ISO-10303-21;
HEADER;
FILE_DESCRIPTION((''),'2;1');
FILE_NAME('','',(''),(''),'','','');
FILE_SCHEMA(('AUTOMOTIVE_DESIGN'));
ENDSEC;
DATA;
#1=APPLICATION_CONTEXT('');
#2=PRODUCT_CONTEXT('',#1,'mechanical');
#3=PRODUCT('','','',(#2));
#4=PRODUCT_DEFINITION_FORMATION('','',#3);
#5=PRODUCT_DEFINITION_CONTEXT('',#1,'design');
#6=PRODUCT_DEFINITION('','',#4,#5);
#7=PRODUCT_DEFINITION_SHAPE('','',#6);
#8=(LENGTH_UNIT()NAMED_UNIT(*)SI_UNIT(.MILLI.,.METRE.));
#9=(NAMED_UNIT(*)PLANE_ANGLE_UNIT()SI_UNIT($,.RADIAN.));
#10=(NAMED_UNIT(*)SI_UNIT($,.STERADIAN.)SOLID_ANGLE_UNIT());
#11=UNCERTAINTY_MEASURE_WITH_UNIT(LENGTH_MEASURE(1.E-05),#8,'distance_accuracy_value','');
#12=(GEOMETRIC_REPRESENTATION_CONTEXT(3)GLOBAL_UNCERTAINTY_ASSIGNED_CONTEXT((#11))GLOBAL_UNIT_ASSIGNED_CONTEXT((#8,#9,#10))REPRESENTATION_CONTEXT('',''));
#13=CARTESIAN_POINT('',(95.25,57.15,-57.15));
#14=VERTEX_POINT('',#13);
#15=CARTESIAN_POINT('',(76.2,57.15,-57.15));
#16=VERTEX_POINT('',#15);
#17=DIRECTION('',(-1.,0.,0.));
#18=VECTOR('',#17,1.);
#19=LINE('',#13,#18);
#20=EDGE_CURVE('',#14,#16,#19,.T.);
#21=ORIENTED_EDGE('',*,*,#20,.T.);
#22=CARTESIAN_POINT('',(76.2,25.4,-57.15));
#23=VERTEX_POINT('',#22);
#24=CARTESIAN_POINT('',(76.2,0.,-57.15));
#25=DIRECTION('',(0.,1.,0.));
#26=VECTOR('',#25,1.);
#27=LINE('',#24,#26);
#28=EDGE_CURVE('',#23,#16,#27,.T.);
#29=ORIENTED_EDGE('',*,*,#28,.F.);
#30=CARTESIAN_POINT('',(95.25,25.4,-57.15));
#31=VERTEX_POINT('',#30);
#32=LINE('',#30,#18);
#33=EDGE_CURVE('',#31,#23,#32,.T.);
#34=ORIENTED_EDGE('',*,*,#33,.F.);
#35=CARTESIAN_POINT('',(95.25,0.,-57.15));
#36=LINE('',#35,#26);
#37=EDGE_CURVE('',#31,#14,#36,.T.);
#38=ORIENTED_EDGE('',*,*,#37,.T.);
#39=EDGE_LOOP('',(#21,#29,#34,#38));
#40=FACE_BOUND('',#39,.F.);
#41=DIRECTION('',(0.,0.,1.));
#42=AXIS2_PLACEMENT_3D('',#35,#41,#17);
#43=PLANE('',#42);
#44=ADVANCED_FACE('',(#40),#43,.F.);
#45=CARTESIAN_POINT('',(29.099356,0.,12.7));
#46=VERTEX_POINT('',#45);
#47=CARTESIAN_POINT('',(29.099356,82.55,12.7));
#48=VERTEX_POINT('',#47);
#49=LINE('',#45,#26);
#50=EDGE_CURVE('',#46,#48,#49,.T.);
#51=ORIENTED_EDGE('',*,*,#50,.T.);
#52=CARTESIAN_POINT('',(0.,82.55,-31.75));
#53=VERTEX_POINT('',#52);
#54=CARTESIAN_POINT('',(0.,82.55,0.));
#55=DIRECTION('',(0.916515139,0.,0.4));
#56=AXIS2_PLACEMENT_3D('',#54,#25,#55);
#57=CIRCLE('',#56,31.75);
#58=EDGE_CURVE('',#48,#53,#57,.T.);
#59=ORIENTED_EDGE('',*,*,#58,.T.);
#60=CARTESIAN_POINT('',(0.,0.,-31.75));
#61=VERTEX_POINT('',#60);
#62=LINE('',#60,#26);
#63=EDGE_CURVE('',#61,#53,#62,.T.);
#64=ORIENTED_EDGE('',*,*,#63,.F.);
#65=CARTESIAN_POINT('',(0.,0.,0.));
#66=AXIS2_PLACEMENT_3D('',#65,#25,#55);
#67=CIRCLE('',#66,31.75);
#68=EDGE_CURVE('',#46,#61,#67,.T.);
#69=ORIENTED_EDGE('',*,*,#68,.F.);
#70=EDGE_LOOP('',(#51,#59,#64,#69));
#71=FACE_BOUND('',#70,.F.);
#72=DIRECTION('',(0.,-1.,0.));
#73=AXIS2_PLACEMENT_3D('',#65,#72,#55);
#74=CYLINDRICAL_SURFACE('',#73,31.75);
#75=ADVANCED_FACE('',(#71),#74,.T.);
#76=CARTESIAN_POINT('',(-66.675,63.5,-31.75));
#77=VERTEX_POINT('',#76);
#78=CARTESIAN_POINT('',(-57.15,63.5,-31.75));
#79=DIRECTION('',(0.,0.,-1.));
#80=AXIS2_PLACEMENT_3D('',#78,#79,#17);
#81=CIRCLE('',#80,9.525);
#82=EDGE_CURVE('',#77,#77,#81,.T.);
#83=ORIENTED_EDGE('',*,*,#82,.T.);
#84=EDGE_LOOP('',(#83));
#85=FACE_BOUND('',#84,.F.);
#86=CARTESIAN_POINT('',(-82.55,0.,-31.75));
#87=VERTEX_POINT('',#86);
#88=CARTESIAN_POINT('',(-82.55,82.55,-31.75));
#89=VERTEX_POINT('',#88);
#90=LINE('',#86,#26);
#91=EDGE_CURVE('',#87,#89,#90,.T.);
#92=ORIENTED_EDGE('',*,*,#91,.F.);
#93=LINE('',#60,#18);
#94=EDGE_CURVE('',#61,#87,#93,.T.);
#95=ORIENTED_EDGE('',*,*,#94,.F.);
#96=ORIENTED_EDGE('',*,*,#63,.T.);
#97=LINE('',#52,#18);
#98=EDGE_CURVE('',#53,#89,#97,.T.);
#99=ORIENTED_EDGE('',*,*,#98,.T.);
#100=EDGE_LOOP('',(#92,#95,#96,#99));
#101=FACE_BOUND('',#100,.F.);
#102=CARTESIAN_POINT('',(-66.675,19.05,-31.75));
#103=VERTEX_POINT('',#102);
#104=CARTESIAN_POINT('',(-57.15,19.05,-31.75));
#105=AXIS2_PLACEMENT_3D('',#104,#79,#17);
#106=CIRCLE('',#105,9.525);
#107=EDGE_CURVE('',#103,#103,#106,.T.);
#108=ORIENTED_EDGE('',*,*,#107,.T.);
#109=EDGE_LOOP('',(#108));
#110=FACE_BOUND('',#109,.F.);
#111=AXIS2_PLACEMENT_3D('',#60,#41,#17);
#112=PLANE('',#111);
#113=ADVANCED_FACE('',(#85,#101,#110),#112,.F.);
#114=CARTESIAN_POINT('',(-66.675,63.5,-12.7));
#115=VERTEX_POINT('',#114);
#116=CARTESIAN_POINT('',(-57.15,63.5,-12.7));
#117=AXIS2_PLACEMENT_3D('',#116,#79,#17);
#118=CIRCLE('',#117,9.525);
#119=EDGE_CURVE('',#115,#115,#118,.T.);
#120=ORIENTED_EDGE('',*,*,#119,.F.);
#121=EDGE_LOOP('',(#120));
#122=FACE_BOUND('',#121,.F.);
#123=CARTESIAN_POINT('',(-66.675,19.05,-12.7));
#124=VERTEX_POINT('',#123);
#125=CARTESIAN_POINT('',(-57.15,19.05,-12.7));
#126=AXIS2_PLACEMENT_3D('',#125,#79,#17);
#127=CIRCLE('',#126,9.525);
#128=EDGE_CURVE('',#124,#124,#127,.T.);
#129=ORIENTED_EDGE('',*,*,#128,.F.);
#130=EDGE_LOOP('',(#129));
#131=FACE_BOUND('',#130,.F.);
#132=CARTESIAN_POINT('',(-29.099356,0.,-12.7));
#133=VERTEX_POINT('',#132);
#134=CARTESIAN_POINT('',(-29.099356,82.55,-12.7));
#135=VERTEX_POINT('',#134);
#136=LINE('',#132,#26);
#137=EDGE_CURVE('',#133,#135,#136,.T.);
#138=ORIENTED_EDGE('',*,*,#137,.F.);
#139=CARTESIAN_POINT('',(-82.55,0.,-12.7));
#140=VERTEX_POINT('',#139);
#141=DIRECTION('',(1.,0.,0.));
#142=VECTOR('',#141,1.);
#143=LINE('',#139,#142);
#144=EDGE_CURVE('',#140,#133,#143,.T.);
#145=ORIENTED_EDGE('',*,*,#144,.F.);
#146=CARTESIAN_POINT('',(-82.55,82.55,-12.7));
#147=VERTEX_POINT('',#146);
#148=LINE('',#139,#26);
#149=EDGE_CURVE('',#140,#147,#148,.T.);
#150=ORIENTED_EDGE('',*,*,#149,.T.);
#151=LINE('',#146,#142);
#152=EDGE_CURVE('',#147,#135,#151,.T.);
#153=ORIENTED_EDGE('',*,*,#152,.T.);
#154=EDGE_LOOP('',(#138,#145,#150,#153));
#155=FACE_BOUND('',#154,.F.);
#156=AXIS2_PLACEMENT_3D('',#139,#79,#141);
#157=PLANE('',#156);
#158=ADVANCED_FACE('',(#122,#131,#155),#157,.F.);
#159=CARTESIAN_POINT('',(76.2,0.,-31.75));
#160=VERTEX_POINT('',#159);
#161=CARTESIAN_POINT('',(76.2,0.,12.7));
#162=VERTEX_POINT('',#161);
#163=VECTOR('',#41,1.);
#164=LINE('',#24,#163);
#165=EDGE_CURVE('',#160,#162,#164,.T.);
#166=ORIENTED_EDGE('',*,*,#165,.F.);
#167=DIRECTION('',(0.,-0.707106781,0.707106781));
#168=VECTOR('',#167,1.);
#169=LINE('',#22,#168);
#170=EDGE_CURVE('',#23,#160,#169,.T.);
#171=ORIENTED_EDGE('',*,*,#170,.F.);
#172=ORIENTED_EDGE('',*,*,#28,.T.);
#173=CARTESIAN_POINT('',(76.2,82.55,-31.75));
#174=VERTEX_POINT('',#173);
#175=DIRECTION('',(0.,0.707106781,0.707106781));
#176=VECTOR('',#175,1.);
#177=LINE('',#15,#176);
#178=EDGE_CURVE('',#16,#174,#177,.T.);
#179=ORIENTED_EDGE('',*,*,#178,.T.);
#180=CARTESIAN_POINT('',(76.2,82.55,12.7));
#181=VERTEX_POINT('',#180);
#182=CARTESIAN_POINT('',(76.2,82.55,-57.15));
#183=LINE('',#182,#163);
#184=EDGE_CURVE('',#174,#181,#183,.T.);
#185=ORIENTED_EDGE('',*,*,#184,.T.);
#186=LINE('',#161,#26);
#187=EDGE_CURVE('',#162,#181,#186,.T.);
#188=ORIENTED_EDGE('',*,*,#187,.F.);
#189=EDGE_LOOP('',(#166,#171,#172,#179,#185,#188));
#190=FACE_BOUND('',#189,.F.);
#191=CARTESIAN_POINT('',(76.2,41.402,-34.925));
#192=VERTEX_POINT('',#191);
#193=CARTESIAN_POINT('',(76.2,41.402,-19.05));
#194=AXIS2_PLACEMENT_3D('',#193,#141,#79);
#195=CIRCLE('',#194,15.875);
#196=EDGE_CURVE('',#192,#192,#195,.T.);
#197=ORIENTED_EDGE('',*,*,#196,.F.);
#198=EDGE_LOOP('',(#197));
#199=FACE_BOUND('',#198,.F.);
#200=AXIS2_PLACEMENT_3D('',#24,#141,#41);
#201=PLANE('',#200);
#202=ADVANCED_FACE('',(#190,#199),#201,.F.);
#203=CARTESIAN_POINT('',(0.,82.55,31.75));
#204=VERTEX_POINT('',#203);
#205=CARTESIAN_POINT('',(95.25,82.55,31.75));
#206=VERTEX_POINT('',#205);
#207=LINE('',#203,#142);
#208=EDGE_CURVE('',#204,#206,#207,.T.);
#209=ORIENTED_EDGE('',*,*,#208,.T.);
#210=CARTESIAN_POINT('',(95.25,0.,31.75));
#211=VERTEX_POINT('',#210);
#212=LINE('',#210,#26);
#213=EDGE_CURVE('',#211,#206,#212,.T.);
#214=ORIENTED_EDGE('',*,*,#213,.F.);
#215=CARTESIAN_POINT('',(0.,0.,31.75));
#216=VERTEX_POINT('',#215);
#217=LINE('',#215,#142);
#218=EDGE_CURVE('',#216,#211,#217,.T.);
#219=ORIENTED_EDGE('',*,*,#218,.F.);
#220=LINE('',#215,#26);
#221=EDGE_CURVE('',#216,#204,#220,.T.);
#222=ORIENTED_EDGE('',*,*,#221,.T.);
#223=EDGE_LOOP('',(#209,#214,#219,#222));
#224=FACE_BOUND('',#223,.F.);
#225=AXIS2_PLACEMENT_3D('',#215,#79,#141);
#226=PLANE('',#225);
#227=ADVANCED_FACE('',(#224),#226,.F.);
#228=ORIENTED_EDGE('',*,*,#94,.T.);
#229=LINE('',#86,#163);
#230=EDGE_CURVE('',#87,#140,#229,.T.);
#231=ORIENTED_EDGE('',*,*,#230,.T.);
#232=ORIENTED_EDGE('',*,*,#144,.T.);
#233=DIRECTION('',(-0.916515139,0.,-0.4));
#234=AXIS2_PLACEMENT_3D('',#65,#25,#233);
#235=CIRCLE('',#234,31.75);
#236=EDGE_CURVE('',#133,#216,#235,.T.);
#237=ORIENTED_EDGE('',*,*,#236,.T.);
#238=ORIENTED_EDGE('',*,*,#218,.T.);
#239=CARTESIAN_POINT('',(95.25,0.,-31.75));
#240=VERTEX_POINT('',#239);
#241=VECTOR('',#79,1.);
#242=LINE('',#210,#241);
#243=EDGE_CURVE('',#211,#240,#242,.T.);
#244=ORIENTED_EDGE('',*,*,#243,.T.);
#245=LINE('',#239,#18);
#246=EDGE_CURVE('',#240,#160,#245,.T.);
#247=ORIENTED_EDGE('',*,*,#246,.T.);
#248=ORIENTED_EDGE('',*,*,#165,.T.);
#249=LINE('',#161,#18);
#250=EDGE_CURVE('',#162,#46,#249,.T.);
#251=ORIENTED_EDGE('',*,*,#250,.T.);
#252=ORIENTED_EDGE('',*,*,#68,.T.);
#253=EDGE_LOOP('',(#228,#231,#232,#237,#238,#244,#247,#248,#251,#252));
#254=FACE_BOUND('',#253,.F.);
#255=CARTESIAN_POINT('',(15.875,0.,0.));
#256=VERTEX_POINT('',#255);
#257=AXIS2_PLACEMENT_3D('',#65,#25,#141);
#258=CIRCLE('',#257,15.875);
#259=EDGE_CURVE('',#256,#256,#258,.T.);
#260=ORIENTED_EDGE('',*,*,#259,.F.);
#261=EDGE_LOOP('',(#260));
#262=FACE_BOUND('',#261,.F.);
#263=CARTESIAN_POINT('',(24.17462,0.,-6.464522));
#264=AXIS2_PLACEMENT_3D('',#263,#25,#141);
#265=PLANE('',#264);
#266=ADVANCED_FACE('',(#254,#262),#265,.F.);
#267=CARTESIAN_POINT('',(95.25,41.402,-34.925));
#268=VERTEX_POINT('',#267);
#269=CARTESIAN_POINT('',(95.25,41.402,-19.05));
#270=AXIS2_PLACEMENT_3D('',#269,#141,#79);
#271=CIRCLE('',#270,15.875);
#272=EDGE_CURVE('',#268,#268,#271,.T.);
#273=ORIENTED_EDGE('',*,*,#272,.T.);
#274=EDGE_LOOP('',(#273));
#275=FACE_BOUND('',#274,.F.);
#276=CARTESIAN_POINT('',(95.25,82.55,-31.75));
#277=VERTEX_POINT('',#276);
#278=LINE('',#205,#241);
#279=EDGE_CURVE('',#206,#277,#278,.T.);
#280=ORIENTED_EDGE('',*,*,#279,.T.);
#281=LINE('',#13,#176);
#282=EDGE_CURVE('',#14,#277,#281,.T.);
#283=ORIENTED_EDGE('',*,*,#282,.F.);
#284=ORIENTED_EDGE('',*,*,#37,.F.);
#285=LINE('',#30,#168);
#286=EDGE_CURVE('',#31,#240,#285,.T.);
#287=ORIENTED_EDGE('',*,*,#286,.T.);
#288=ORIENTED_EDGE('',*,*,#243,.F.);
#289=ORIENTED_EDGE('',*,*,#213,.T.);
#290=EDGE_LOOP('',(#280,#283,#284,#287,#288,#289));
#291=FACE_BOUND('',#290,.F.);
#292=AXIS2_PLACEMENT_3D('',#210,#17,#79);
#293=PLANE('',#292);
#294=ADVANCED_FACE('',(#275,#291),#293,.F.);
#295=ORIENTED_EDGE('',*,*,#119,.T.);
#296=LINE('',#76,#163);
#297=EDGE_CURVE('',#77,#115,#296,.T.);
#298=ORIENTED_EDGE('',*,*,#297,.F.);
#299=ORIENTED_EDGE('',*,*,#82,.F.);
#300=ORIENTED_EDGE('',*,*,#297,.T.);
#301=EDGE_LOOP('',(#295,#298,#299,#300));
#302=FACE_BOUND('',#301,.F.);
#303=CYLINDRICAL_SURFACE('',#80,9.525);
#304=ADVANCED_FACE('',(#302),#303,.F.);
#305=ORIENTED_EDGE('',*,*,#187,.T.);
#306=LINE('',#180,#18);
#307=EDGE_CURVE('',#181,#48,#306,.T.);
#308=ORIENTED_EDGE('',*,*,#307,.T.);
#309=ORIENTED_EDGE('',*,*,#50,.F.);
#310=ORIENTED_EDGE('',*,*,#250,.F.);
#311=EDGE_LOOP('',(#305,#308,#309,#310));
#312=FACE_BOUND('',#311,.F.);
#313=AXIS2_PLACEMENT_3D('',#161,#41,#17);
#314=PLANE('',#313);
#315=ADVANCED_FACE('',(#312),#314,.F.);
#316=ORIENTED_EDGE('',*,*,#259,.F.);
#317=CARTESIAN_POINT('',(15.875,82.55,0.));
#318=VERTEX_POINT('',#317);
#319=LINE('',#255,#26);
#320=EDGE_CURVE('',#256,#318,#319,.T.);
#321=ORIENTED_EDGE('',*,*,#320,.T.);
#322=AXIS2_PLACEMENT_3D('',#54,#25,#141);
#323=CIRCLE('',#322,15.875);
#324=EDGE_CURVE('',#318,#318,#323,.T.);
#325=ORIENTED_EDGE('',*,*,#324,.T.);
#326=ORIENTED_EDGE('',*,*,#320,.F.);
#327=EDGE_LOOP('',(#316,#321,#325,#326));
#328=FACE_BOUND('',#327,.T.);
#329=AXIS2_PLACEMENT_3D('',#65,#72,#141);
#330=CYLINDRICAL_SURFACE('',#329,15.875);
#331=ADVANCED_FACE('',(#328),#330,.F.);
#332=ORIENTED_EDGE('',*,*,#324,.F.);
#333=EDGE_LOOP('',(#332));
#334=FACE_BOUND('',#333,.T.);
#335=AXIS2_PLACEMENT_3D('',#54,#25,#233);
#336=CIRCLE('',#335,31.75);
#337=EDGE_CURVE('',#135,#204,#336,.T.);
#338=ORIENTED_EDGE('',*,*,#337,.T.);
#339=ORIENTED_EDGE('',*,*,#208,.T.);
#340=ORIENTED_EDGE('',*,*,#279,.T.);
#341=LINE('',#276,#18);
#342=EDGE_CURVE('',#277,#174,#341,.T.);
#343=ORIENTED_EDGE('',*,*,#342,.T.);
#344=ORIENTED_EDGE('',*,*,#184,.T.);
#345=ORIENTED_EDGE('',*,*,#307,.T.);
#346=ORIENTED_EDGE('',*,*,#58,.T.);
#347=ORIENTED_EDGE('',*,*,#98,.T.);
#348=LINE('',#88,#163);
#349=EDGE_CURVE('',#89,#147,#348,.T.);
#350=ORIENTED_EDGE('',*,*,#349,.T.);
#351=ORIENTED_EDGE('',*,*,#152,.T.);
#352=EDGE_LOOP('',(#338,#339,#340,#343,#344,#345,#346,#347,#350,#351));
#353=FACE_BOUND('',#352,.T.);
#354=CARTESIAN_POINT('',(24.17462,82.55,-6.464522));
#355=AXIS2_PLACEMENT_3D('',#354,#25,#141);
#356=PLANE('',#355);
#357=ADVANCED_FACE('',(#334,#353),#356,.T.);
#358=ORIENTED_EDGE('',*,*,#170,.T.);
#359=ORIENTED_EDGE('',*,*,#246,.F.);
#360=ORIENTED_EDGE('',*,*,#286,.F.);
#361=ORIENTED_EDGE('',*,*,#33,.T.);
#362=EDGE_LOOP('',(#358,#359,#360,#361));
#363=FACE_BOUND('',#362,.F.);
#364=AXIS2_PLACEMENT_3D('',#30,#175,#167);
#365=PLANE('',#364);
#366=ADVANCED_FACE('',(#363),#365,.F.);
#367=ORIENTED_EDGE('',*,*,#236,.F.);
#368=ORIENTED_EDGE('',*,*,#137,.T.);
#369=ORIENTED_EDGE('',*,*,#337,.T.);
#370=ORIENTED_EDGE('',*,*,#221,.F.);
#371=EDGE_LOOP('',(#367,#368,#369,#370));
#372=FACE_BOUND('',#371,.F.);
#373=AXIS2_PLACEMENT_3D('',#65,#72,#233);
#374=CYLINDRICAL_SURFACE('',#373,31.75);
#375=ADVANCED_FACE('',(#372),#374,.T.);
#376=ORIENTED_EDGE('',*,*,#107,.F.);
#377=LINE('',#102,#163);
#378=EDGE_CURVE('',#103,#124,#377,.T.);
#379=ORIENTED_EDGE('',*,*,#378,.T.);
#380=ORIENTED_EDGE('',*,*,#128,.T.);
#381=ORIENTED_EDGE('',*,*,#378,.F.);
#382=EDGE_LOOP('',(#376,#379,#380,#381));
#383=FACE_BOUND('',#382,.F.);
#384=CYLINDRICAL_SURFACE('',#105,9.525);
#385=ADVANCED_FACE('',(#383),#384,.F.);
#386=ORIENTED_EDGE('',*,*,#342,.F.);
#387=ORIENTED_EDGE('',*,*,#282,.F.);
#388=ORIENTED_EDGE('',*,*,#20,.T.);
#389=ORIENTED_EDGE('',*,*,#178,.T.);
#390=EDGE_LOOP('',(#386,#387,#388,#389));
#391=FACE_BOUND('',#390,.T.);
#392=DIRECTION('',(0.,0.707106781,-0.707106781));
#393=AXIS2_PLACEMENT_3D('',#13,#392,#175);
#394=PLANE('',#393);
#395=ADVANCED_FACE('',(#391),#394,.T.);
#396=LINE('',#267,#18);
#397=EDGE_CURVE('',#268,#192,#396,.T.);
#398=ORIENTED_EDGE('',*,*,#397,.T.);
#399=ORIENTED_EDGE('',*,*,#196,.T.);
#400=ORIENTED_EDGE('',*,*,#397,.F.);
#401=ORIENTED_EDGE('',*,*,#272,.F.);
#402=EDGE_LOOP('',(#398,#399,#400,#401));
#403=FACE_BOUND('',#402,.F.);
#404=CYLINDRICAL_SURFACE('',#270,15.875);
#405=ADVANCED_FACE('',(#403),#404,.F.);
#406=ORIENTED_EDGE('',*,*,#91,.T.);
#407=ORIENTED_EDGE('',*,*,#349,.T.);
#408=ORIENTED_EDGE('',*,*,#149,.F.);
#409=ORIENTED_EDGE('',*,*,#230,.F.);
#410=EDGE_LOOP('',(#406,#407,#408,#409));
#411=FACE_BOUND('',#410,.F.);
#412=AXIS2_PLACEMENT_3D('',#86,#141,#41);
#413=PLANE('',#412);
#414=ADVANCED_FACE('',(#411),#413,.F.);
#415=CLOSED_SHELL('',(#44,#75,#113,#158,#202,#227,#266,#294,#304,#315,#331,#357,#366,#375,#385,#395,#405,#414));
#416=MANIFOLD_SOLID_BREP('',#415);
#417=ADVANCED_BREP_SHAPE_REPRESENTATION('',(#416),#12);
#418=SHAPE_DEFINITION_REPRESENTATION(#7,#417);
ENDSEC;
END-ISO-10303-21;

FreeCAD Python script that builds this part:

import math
import FreeCAD as App
import Part
import Sketcher
from FreeCAD import Vector
Q = App.Units.Quantity


def add_polygon(sketch, points):
    """Adds a closed chain of lines whose ends are joined by coincident constraints."""
    first, n = sketch.GeometryCount, len(points)
    for a, b in zip(points, points[1:] + points[:1]):
        sketch.addGeometry(Part.LineSegment(App.Vector(*a, 0), App.Vector(*b, 0)), False)
    for i in range(n):
        sketch.addConstraint(Sketcher.Constraint("Coincident", first + i, 2, first + (i + 1) % n, 1))

doc = App.newDocument("Part")
params = doc.addObject("Spreadsheet::Sheet", "Params")
for row, (alias, value) in enumerate([
    ("sketch1_diameter", "1.25 in"),
    ("sketch1_radius", "1.25 in"),
    ("sketch1_height", "3.5 in"),
    ("sketch1_width", "3.25 in"),
    ("sketch1_width2", "3.75 in"),
    ("pad1_length", "3.25 in"),
    ("sketch2_diameter", "0.75 in"),
    ("sketch3_width", "1 in"),
    ("pocket2_length", "0.75 in"),
    ("sketch4_diameter", "1.25 in"),
    ("pocket3_length", "0.75 in"),
], start=1):
    params.set(f"A{row}", alias)
    params.set(f"B{row}", "=" + value)
    params.setAlias(f"B{row}", alias)

body = doc.addObject("PartDesign::Body", "Body")

# Sketch on XZ plane
sketch1 = body.newObject("Sketcher::SketchObject", "Sketch")
sketch1.AttachmentSupport = (doc.getObject("XZ_Plane"), [""])
sketch1.MapMode = "FlatFace"
sketch1.addGeometry([
    Part.LineSegment(Vector(0, -32, 0), Vector(-83, -32, 0)),  # 0
    Part.LineSegment(Vector(-83, -32, 0), Vector(-83, -13, 0)),  # 1
    Part.LineSegment(Vector(-83, -13, 0), Vector(-29, -13, 0)),  # 2
    Part.ArcOfCircle(Part.Circle(Vector(0, 0, 0), Vector(0, 0, 1), 32), math.radians(90), math.radians(204)),  # 3
    Part.LineSegment(Vector(0, 32, 0), Vector(95, 32, 0)),  # 4
    Part.LineSegment(Vector(95, 32, 0), Vector(95, -57, 0)),  # 5
    Part.LineSegment(Vector(95, -57, 0), Vector(76, -57, 0)),  # 6
    Part.LineSegment(Vector(76, -57, 0), Vector(76, 13, 0)),  # 7
    Part.LineSegment(Vector(76, 13, 0), Vector(29, 13, 0)),  # 8
    Part.ArcOfCircle(Part.Circle(Vector(0, 0, 0), Vector(0, 0, 1), 32), math.radians(-90), math.radians(24)),  # 9
    Part.Circle(Vector(0, 0, 0), Vector(0, 0, 1), 16),  # 10
], False)
sketch1.addConstraint([
    Sketcher.Constraint("Coincident", 0, 2, 1, 1),
    Sketcher.Constraint("Coincident", 1, 2, 2, 1),
    Sketcher.Constraint("Coincident", 2, 2, 3, 2),
    Sketcher.Constraint("Tangent", 3, 1, 4, 1),
    Sketcher.Constraint("Coincident", 4, 2, 5, 1),
    Sketcher.Constraint("Coincident", 5, 2, 6, 1),
    Sketcher.Constraint("Coincident", 6, 2, 7, 1),
    Sketcher.Constraint("Coincident", 7, 2, 8, 1),
    Sketcher.Constraint("Coincident", 8, 2, 9, 2),
    Sketcher.Constraint("Tangent", 9, 1, 0, 1),
    Sketcher.Constraint("Horizontal", 0),
    Sketcher.Constraint("Vertical", 1),
    Sketcher.Constraint("Horizontal", 2),
    Sketcher.Constraint("Horizontal", 4),
    Sketcher.Constraint("Vertical", 5),
    Sketcher.Constraint("Horizontal", 6),
    Sketcher.Constraint("Vertical", 7),
    Sketcher.Constraint("Horizontal", 8),
    Sketcher.Constraint("Coincident", 3, 3, -1, 1),
    Sketcher.Constraint("Coincident", 9, 3, -1, 1),
    Sketcher.Constraint("Coincident", 10, 3, -1, 1),
    Sketcher.Constraint("Equal", 3, 9),
    Sketcher.Constraint("Equal", 6, 1),
    Sketcher.Constraint("Diameter", 10, Q("1.25 in")),
    Sketcher.Constraint("Radius", 3, Q("1.25 in")),
    Sketcher.Constraint("DistanceY", 5, 2, 5, 1, Q("3.5 in")),
    Sketcher.Constraint("DistanceX", -1, 1, 6, 2, Q("3 in")),
    Sketcher.Constraint("DistanceX", 0, 2, 0, 1, Q("3.25 in")),
    Sketcher.Constraint("DistanceX", 4, 1, 4, 2, Q("3.75 in")),
    Sketcher.Constraint("DistanceY", 7, 1, 7, 2, Q("2.75 in")),
])
sketch1.setExpression("Constraints[23]", "Params.sketch1_diameter")
sketch1.setExpression("Constraints[24]", "Params.sketch1_radius")
sketch1.setExpression("Constraints[25]", "Params.sketch1_height")
sketch1.setExpression("Constraints[27]", "Params.sketch1_width")
sketch1.setExpression("Constraints[28]", "Params.sketch1_width2")
pad1 = body.newObject("PartDesign::Pad", "Pad")
pad1.Profile = sketch1
pad1.setExpression("Length", "Params.pad1_length")
pad1.Reversed = True

# Sketch on XY plane
sketch2 = body.newObject("Sketcher::SketchObject", "Sketch001")
sketch2.AttachmentSupport = (doc.getObject("XY_Plane"), [""])
sketch2.MapMode = "FlatFace"
sketch2.AttachmentOffset = App.Placement(Vector(0, 0, -1.25 * 25.4), App.Rotation())
sketch2.addGeometry([
    Part.Circle(Vector(-57, 64, 0), Vector(0, 0, 1), 10),
    Part.Circle(Vector(-57, 19, 0), Vector(0, 0, 1), 10),
], False)
sketch2.addConstraint([
    Sketcher.Constraint("Equal", 0, 1),
    Sketcher.Constraint("Vertical", 0, 3, 1, 3),
    Sketcher.Constraint("Diameter", 0, Q("0.75 in")),
    Sketcher.Constraint("DistanceY", -1, 1, 0, 3, Q("2.5 in")),
    Sketcher.Constraint("DistanceX", 0, 3, -1, 1, Q("2.25 in")),
    Sketcher.Constraint("DistanceY", -1, 1, 1, 3, Q("0.75 in")),
])
sketch2.setExpression("Constraints[2]", "Params.sketch2_diameter")
pocket1 = body.newObject("PartDesign::Pocket", "Pocket")
pocket1.Profile = sketch2
pocket1.Type = "ThroughAll"
pocket1.Reversed = True

# Sketch on YZ plane
sketch3 = body.newObject("Sketcher::SketchObject", "Sketch002")
sketch3.AttachmentSupport = (doc.getObject("YZ_Plane"), [""])
sketch3.MapMode = "FlatFace"
sketch3.AttachmentOffset = App.Placement(Vector(0, 0, 3.75 * 25.4), App.Rotation())
add_polygon(sketch3, [(0, -32), (0, -57), (25, -57)])  # lines 0-2
add_polygon(sketch3, [(83, -57), (83, -32), (57, -57)])  # lines 3-5
sketch3.addConstraint([
    Sketcher.Constraint("Vertical", 0),
    Sketcher.Constraint("Horizontal", 1),
    Sketcher.Constraint("Vertical", 3),
    Sketcher.Constraint("Horizontal", 5),
    Sketcher.Constraint("PointOnObject", 0, 2, -2),
    Sketcher.Constraint("Perpendicular", 2, 4),
    Sketcher.Constraint("Horizontal", 2, 2, 3, 2),
    Sketcher.Constraint("Horizontal", 1, 2, 4, 2),
    Sketcher.Constraint("Equal", 1, 5),
    Sketcher.Constraint("DistanceX", 1, 1, 1, 2, Q("1 in")),
    Sketcher.Constraint("DistanceY", 0, 2, -1, 1, Q("2.25 in")),
    Sketcher.Constraint("DistanceX", -1, 1, 3, 2, Q("3.25 in")),
])
sketch3.setExpression("Constraints[15]", "Params.sketch3_width")
pocket2 = body.newObject("PartDesign::Pocket", "Pocket001")
pocket2.Profile = sketch3
pocket2.setExpression("Length", "Params.pocket2_length")

# Sketch on YZ plane
sketch4 = body.newObject("Sketcher::SketchObject", "Sketch003")
sketch4.AttachmentSupport = (doc.getObject("YZ_Plane"), [""])
sketch4.MapMode = "FlatFace"
sketch4.AttachmentOffset = App.Placement(Vector(0, 0, 3.75 * 25.4), App.Rotation())
sketch4.addGeometry(Part.Circle(Vector(41, -19, 0), Vector(0, 0, 1), 16), False)
sketch4.addConstraint([
    Sketcher.Constraint("Diameter", 0, Q("1.25 in")),
    Sketcher.Constraint("DistanceX", -1, 1, 0, 3, Q("1.63 in")),
    Sketcher.Constraint("DistanceY", 0, 3, -1, 1, Q("0.75 in")),
])
sketch4.setExpression("Constraints[0]", "Params.sketch4_diameter")
pocket3 = body.newObject("PartDesign::Pocket", "Pocket002")
pocket3.Profile = sketch4
pocket3.setExpression("Length", "Params.pocket3_length")

doc.recompute()
